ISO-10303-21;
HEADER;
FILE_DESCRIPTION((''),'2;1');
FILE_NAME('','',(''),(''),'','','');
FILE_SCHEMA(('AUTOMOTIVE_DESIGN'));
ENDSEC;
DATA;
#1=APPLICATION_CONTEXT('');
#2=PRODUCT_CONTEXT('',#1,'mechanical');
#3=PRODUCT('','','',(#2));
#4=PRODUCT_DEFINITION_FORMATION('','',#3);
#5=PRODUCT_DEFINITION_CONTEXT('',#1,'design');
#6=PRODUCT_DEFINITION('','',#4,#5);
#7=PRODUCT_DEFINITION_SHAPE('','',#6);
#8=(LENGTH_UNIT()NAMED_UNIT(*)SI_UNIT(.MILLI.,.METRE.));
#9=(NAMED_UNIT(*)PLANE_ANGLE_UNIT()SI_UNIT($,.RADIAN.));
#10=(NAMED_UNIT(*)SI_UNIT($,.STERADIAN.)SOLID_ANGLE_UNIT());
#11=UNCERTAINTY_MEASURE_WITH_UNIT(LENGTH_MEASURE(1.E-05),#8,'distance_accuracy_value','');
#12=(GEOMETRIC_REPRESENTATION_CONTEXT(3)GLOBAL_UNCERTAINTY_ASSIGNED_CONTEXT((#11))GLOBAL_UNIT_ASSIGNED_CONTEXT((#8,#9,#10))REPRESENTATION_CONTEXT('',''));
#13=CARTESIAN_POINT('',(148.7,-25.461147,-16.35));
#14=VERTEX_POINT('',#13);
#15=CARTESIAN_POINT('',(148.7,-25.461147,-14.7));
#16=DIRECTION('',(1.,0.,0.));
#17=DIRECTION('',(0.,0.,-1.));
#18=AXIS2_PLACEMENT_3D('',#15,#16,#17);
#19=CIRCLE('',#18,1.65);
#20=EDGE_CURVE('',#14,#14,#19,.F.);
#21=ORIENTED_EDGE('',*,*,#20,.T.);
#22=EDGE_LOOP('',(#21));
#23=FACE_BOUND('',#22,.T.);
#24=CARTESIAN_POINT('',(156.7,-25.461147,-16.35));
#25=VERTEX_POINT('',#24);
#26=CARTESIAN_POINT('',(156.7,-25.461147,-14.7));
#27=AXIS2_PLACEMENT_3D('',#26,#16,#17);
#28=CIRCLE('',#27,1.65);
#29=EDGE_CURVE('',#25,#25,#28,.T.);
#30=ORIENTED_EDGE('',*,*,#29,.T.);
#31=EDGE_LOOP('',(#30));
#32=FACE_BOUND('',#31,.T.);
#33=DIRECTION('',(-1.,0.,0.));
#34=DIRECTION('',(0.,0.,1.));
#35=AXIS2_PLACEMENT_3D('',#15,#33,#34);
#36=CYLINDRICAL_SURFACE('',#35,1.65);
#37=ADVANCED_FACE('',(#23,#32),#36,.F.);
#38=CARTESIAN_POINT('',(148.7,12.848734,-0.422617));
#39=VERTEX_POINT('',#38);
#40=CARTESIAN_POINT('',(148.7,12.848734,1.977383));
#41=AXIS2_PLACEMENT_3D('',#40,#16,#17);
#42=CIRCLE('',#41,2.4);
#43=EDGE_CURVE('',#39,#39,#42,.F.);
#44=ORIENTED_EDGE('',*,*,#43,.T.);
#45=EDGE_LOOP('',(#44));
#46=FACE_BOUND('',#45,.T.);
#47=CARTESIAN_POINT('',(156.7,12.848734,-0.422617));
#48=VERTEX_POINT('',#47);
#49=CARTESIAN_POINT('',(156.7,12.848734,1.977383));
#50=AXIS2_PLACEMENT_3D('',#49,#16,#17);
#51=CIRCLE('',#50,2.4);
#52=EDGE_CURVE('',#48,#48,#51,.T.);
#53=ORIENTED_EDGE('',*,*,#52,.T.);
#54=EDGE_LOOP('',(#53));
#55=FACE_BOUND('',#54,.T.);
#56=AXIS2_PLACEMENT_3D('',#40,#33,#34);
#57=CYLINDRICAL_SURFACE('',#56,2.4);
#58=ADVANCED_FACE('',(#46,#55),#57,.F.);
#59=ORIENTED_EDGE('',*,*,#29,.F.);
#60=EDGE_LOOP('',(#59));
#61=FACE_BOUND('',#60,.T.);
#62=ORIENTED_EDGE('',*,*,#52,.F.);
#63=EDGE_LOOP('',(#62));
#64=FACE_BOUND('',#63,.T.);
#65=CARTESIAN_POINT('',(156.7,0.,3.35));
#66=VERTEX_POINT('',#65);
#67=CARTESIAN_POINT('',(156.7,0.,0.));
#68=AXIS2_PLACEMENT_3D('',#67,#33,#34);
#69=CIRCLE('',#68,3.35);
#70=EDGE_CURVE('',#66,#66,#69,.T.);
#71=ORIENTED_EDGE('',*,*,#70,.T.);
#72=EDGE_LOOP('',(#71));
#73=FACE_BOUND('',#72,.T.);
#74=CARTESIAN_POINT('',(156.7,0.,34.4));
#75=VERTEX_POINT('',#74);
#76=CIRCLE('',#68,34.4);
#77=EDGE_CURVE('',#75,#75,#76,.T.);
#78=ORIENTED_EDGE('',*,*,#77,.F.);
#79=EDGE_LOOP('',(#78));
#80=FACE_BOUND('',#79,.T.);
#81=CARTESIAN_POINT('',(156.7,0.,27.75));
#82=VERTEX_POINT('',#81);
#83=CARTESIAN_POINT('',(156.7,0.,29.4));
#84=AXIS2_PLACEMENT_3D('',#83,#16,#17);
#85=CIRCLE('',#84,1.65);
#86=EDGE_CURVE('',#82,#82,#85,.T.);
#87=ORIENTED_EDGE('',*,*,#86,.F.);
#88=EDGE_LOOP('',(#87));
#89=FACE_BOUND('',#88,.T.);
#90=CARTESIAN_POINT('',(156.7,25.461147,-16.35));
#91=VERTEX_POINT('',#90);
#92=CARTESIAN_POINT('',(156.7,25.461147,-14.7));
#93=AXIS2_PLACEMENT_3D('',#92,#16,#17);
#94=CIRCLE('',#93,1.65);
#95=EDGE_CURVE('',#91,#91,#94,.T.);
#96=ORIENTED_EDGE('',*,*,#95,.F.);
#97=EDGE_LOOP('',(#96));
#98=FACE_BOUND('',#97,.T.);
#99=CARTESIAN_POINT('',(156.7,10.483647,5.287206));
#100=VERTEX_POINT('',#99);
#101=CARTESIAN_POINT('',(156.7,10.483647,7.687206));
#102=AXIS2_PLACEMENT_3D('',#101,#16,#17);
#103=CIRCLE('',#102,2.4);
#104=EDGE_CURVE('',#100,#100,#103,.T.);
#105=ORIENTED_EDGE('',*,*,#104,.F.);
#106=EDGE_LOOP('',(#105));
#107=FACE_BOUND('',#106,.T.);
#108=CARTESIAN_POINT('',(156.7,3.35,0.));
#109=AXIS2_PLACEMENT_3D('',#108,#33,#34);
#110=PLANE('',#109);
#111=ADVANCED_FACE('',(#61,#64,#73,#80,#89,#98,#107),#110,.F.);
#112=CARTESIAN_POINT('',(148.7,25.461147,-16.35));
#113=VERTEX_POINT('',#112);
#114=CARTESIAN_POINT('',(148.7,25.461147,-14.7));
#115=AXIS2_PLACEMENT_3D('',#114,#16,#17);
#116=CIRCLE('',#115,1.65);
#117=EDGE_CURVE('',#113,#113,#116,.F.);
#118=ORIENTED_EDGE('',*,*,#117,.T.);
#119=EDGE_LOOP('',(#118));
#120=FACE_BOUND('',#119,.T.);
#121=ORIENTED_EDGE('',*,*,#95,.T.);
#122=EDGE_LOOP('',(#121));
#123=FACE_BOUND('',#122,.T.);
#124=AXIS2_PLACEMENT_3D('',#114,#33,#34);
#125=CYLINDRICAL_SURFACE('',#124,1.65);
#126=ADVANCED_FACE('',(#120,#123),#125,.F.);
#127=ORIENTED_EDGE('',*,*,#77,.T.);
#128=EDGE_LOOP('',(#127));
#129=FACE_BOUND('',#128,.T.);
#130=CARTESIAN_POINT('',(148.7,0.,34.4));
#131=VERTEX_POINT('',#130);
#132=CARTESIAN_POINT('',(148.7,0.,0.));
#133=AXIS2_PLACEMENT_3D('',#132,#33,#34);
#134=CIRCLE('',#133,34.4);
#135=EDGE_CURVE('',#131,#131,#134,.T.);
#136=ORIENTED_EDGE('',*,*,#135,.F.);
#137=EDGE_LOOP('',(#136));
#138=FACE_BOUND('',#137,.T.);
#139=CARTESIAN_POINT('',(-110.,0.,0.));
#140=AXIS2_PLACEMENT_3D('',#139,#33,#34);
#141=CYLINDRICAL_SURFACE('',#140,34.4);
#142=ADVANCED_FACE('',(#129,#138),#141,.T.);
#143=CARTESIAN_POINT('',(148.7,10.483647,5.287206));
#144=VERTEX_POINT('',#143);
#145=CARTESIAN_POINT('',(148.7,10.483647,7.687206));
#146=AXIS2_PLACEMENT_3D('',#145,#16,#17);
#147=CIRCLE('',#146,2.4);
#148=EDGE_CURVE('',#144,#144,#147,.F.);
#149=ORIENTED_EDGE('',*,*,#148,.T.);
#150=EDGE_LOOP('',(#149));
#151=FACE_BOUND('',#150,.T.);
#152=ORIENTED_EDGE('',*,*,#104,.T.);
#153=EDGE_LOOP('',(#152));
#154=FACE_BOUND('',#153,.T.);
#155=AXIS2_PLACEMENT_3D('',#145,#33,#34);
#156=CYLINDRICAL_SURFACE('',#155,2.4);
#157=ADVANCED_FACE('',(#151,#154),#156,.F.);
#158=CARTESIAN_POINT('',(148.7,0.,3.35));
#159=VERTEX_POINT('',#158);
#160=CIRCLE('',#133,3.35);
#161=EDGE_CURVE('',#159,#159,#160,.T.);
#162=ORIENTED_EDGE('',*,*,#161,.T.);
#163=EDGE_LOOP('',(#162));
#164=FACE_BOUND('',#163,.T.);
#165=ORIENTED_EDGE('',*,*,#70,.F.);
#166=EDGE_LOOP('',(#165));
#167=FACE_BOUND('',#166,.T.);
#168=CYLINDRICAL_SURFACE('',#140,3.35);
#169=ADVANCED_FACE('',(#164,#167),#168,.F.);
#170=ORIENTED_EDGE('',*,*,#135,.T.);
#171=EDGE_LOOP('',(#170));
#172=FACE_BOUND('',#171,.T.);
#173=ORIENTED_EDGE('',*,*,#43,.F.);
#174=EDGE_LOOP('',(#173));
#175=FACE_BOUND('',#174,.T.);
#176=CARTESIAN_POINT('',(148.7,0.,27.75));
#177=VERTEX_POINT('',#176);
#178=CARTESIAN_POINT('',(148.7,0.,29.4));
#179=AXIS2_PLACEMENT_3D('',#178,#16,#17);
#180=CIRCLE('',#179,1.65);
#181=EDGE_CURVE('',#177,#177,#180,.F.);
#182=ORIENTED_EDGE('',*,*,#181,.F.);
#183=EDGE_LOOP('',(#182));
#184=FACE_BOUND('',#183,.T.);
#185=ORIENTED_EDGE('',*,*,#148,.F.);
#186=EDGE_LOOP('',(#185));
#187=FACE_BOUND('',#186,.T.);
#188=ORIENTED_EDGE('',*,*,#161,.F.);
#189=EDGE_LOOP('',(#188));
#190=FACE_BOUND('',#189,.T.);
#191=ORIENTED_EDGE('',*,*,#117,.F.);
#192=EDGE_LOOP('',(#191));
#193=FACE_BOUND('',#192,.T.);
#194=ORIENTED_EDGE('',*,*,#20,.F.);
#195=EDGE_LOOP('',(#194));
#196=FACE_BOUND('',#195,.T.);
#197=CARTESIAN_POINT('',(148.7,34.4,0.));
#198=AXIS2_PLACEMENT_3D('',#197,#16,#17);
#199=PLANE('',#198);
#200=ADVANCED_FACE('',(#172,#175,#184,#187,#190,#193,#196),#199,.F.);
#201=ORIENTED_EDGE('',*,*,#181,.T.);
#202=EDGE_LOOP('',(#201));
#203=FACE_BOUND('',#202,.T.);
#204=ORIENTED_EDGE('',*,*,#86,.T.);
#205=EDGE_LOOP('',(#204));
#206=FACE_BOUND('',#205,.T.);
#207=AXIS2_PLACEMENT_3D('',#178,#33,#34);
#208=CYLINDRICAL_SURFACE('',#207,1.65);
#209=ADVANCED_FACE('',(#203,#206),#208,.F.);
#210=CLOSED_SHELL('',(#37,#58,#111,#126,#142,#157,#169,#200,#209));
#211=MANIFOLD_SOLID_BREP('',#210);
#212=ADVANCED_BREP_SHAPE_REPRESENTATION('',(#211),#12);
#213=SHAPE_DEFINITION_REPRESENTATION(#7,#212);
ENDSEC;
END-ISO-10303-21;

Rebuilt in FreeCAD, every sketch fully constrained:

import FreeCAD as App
import Part
import Sketcher

V = App.Vector
Q = App.Units.Quantity

doc = App.newDocument("Part")
body = doc.addObject("PartDesign::Body", "Body")

# Sketch on XY plane
sketch1 = doc.addObject("Sketcher::SketchObject", "Sketch")
body.addObject(sketch1)
sketch1.AttachmentSupport = (doc.XY_Plane, [""])
sketch1.MapMode = "FlatFace"
sketch1.addGeometry([
    Part.LineSegment(V(149, 34, 0), V(149, 3, 0)),
    Part.LineSegment(V(149, 3, 0), V(157, 3, 0)),
    Part.LineSegment(V(157, 3, 0), V(157, 34, 0)),
    Part.LineSegment(V(157, 34, 0), V(149, 34, 0)),
], False)
sketch1.addConstraint([
    Sketcher.Constraint("Coincident", 0, 2, 1, 1),
    Sketcher.Constraint("Coincident", 1, 2, 2, 1),
    Sketcher.Constraint("Coincident", 2, 2, 3, 1),
    Sketcher.Constraint("Coincident", 3, 2, 0, 1),
    Sketcher.Constraint("Vertical", 0),
    Sketcher.Constraint("Horizontal", 1),
    Sketcher.Constraint("Vertical", 2),
    Sketcher.Constraint("Horizontal", 3),
    Sketcher.Constraint("DistanceX", 1, 1, 1, 2, Q("8 mm")),
    Sketcher.Constraint("DistanceY", 0, 2, 0, 1, Q("31.05 mm")),
    Sketcher.Constraint("DistanceX", -1, 1, 0, 2, Q("148.7 mm")),
    Sketcher.Constraint("DistanceY", -1, 1, 2, 2, Q("34.4 mm")),
])
revolution = doc.addObject("PartDesign::Revolution", "Revolution")
body.addObject(revolution)
revolution.Profile = sketch1
revolution.ReferenceAxis = (sketch1, ["H_Axis"])
revolution.Angle = 360

# Sketch on YZ plane
sketch2 = doc.addObject("Sketcher::SketchObject", "Sketch001")
body.addObject(sketch2)
sketch2.AttachmentSupport = (doc.YZ_Plane, [""])
sketch2.MapMode = "FlatFace"
sketch2.addGeometry([
    Part.Circle(V(12.8, 2, 0), V(0, 0, 1), 2.4),  # 0
    Part.Circle(V(10.5, 7.7, 0), V(0, 0, 1), 2.4),  # 1
    Part.Circle(V(0, 29.4, 0), V(0, 0, 1), 1.6),  # 2
    Part.Circle(V(-25.5, -14.7, 0), V(0, 0, 1), 1.6),  # 3
    Part.Circle(V(25.5, -14.7, 0), V(0, 0, 1), 1.6),  # 4
], False)
sketch2.addConstraint([
    Sketcher.Constraint("Equal", 0, 1),
    Sketcher.Constraint("Equal", 2, 3),
    Sketcher.Constraint("Equal", 3, 4),
    Sketcher.Constraint("Symmetric", 3, 3, 4, 3, -2),
    Sketcher.Constraint("PointOnObject", 2, 3, -2),
    Sketcher.Constraint("Diameter", 0, Q("4.8 mm")),
    Sketcher.Constraint("Diameter", 2, Q("3.3 mm")),
    Sketcher.Constraint("DistanceY", -1, 1, 2, 3, Q("29.4 mm")),
    Sketcher.Constraint("DistanceY", 3, 3, -1, 1, Q("14.7 mm")),
    Sketcher.Constraint("DistanceX", 1, 3, 4, 3, Q("14.977499 mm")),
    Sketcher.Constraint("DistanceX", 3, 3, 0, 3, Q("38.309881 mm")),
    Sketcher.Constraint("DistanceX", -1, 1, 0, 3, Q("12.848734 mm")),
    Sketcher.Constraint("DistanceY", -1, 1, 0, 3, Q("1.977383 mm")),
    Sketcher.Constraint("DistanceY", -1, 1, 1, 3, Q("7.687206 mm")),
])
pocket1 = doc.addObject("PartDesign::Pocket", "Pocket")
body.addObject(pocket1)
pocket1.Profile = sketch2
pocket1.Type = "ThroughAll"
pocket1.Midplane = True

doc.recompute()
